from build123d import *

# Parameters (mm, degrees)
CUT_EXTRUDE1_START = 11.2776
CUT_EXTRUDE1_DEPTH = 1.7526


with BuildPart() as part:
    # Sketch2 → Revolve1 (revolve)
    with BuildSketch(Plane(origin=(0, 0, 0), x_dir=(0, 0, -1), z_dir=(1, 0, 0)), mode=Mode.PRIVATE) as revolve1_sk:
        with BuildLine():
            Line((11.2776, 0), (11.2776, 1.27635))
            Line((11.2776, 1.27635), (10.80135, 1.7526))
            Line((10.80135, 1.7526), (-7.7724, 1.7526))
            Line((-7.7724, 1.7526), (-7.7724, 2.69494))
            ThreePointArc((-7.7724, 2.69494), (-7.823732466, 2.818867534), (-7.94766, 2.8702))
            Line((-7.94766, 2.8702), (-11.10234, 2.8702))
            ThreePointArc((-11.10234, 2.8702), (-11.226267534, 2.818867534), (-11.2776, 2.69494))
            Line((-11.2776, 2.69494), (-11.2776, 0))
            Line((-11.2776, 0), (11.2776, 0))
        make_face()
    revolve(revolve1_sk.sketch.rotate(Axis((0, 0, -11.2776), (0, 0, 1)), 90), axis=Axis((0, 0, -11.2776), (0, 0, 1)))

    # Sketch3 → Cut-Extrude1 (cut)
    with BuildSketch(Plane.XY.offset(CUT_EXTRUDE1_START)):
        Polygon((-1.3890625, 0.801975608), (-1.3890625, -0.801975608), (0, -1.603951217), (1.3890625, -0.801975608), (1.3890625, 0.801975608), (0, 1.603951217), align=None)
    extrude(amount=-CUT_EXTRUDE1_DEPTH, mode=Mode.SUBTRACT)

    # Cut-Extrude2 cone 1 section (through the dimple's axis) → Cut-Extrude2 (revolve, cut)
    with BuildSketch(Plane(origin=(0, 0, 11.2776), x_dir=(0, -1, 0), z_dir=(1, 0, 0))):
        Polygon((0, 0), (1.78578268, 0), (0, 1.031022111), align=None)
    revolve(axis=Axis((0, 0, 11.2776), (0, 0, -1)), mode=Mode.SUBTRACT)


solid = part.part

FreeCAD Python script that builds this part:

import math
import FreeCAD as App
import Part
import Sketcher

V = App.Vector
Q = App.Units.Quantity

doc = App.newDocument("Part")
body = doc.addObject("PartDesign::Body", "Body")

# Sketch on YZ plane
sketch1 = doc.addObject("Sketcher::SketchObject", "Sketch")
body.addObject(sketch1)
sketch1.AttachmentSupport = (doc.YZ_Plane, [""])
sketch1.MapMode = "FlatFace"
sketch1.addGeometry(Part.LineSegment(V(0, -11.28, 0), V(1.28, -11.28, 0)), False)
sketch1.addGeometry(Part.LineSegment(V(1.28, -11.28, 0), V(1.75, -10.8, 0)), False)
sketch1.addGeometry(Part.LineSegment(V(1.75, -10.8, 0), V(1.75, 7.77, 0)), False)
sketch1.addGeometry(Part.LineSegment(V(1.75, 7.77, 0), V(2.69, 7.77, 0)), False)
sketch1.addGeometry(Part.ArcOfCircle(Part.Circle(V(2.69, 7.95, 0), V(0, 0, 1), 0.18), math.radians(-90), math.radians(0)), False)
sketch1.addGeometry(Part.LineSegment(V(2.87, 7.95, 0), V(2.87, 11.1, 0)), False)
sketch1.addGeometry(Part.ArcOfCircle(Part.Circle(V(2.69, 11.1, 0), V(0, 0, 1), 0.18), math.radians(0), math.radians(90)), False)
sketch1.addGeometry(Part.LineSegment(V(2.69, 11.28, 0), V(0, 11.28, 0)), False)
sketch1.addGeometry(Part.LineSegment(V(0, 11.28, 0), V(0, -11.28, 0)), False)
sketch1.addConstraint(Sketcher.Constraint("Coincident", 0, 2, 1, 1))
sketch1.addConstraint(Sketcher.Constraint("Coincident", 1, 2, 2, 1))
sketch1.addConstraint(Sketcher.Constraint("Coincident", 2, 2, 3, 1))
sketch1.addConstraint(Sketcher.Constraint("Tangent", 3, 2, 4, 1))
sketch1.addConstraint(Sketcher.Constraint("Tangent", 4, 2, 5, 1))
sketch1.addConstraint(Sketcher.Constraint("Tangent", 5, 2, 6, 1))
sketch1.addConstraint(Sketcher.Constraint("Tangent", 6, 2, 7, 1))
sketch1.addConstraint(Sketcher.Constraint("Coincident", 7, 2, 8, 1))
sketch1.addConstraint(Sketcher.Constraint("Coincident", 8, 2, 0, 1))
sketch1.addConstraint(Sketcher.Constraint("Horizontal", 0))
sketch1.addConstraint(Sketcher.Constraint("Vertical", 2))
sketch1.addConstraint(Sketcher.Constraint("Horizontal", 3))
sketch1.addConstraint(Sketcher.Constraint("Vertical", 5))
sketch1.addConstraint(Sketcher.Constraint("Horizontal", 7))
sketch1.addConstraint(Sketcher.Constraint("Vertical", 8))
sketch1.addConstraint(Sketcher.Constraint("Equal", 4, 6))
sketch1.addConstraint(Sketcher.Constraint("Symmetric", 7, 2, 8, 2, -1, 1))
sketch1.addConstraint(Sketcher.Constraint("Angle", 1, Q("45 deg")))
sketch1.addConstraint(Sketcher.Constraint("Radius", 4, Q("0.0069 in")))
sketch1.addConstraint(Sketcher.Constraint("DistanceY", 8, 2, 8, 1, Q("0.888 in")))
sketch1.addConstraint(Sketcher.Constraint("DistanceY", 0, 2, 2, 2, Q("0.75 in")))
sketch1.addConstraint(Sketcher.Constraint("DistanceX", 3, 1, 3, 2, Q("0.0371 in")))
sketch1.addConstraint(Sketcher.Constraint("DistanceX", 7, 2, 7, 1, Q("0.1061 in")))
sketch1.addConstraint(Sketcher.Constraint("DistanceX", 0, 1, 0, 2, 1.27635))
revolution = doc.addObject("PartDesign::Revolution", "Revolution")
body.addObject(revolution)
revolution.Profile = sketch1
revolution.ReferenceAxis = (sketch1, ["V_Axis"])
revolution.Angle = 360

# Sketch on XY plane
sketch2 = doc.addObject("Sketcher::SketchObject", "Sketch001")
body.addObject(sketch2)
sketch2.AttachmentSupport = (doc.XY_Plane, [""])
sketch2.MapMode = "FlatFace"
sketch2.AttachmentOffset = App.Placement(V(0, 0, 0.444 * 25.4), App.Rotation())
sketch2.addGeometry(Part.LineSegment(V(-1.4, 0.8, 0), V(-1.4, -0.8, 0)), False)
sketch2.addGeometry(Part.LineSegment(V(-1.4, -0.8, 0), V(0, -1.6, 0)), False)
sketch2.addGeometry(Part.LineSegment(V(0, -1.6, 0), V(1.4, -0.8, 0)), False)
sketch2.addGeometry(Part.LineSegment(V(1.4, -0.8, 0), V(1.4, 0.8, 0)), False)
sketch2.addGeometry(Part.LineSegment(V(1.4, 0.8, 0), V(0, 1.6, 0)), False)
sketch2.addGeometry(Part.LineSegment(V(0, 1.6, 0), V(-1.4, 0.8, 0)), False)
sketch2.addConstraint(Sketcher.Constraint("Coincident", 0, 2, 1, 1))
sketch2.addConstraint(Sketcher.Constraint("Coincident", 1, 2, 2, 1))
sketch2.addConstraint(Sketcher.Constraint("Coincident", 2, 2, 3, 1))
sketch2.addConstraint(Sketcher.Constraint("Coincident", 3, 2, 4, 1))
sketch2.addConstraint(Sketcher.Constraint("Coincident", 4, 2, 5, 1))
sketch2.addConstraint(Sketcher.Constraint("Coincident", 5, 2, 0, 1))
sketch2.addConstraint(Sketcher.Constraint("Vertical", 0))
sketch2.addConstraint(Sketcher.Constraint("Vertical", 3))
sketch2.addConstraint(Sketcher.Constraint("Symmetric", 0, 2, 3, 2, -1, 1))
sketch2.addConstraint(Sketcher.Constraint("Symmetric", 1, 2, 4, 2, -1, 1))
sketch2.addConstraint(Sketcher.Constraint("PointOnObject", 1, 2, -2))
sketch2.addConstraint(Sketcher.Constraint("Parallel", 2, 5))
sketch2.addConstraint(Sketcher.Constraint("Horizontal", 0, 2, 2, 2))
sketch2.addConstraint(Sketcher.Constraint("Angle", 1, Q("-30 deg")))
sketch2.addConstraint(Sketcher.Constraint("DistanceX", 0, 2, 2, 2, Q("0.109375 in")))
sketch2.addConstraint(Sketcher.Constraint("DistanceY", 0, 2, 0, 1, 1.603951))
pocket1 = doc.addObject("PartDesign::Pocket", "Pocket")
body.addObject(pocket1)
pocket1.Profile = sketch2
pocket1.Length = Q("0.069 in")

# Sketch on YZ plane
sketch3 = doc.addObject("Sketcher::SketchObject", "Sketch002")
body.addObject(sketch3)
sketch3.AttachmentSupport = (doc.YZ_Plane, [""])
sketch3.MapMode = "FlatFace"
sketch3.addGeometry(Part.LineSegment(V(0, 11.3, 0), V(-1.8, 11.3, 0)), False)
sketch3.addGeometry(Part.LineSegment(V(-1.8, 11.3, 0), V(0, 10.2, 0)), False)
sketch3.addGeometry(Part.LineSegment(V(0, 10.2, 0), V(0, 11.3, 0)), False)
sketch3.addConstraint(Sketcher.Constraint("Coincident", 0, 2, 1, 1))
sketch3.addConstraint(Sketcher.Constraint("Coincident", 1, 2, 2, 1))
sketch3.addConstraint(Sketcher.Constraint("Coincident", 2, 2, 0, 1))
sketch3.addConstraint(Sketcher.Constraint("Horizontal", 0))
sketch3.addConstraint(Sketcher.Constraint("Vertical", 2))
sketch3.addConstraint(Sketcher.Constraint("PointOnObject", 1, 2, -2))
sketch3.addConstraint(Sketcher.Constraint("Angle", 1, Q("-30 deg")))
sketch3.addConstraint(Sketcher.Constraint("DistanceY", -1, 1, 0, 2, Q("0.444 in")))
sketch3.addConstraint(Sketcher.Constraint("DistanceX", 0, 2, 0, 1, 1.785783))
groove = doc.addObject("PartDesign::Groove", "Groove")
body.addObject(groove)
groove.Profile = sketch3
groove.ReferenceAxis = (sketch3, ["V_Axis"])
groove.Angle = 360

doc.recompute()
